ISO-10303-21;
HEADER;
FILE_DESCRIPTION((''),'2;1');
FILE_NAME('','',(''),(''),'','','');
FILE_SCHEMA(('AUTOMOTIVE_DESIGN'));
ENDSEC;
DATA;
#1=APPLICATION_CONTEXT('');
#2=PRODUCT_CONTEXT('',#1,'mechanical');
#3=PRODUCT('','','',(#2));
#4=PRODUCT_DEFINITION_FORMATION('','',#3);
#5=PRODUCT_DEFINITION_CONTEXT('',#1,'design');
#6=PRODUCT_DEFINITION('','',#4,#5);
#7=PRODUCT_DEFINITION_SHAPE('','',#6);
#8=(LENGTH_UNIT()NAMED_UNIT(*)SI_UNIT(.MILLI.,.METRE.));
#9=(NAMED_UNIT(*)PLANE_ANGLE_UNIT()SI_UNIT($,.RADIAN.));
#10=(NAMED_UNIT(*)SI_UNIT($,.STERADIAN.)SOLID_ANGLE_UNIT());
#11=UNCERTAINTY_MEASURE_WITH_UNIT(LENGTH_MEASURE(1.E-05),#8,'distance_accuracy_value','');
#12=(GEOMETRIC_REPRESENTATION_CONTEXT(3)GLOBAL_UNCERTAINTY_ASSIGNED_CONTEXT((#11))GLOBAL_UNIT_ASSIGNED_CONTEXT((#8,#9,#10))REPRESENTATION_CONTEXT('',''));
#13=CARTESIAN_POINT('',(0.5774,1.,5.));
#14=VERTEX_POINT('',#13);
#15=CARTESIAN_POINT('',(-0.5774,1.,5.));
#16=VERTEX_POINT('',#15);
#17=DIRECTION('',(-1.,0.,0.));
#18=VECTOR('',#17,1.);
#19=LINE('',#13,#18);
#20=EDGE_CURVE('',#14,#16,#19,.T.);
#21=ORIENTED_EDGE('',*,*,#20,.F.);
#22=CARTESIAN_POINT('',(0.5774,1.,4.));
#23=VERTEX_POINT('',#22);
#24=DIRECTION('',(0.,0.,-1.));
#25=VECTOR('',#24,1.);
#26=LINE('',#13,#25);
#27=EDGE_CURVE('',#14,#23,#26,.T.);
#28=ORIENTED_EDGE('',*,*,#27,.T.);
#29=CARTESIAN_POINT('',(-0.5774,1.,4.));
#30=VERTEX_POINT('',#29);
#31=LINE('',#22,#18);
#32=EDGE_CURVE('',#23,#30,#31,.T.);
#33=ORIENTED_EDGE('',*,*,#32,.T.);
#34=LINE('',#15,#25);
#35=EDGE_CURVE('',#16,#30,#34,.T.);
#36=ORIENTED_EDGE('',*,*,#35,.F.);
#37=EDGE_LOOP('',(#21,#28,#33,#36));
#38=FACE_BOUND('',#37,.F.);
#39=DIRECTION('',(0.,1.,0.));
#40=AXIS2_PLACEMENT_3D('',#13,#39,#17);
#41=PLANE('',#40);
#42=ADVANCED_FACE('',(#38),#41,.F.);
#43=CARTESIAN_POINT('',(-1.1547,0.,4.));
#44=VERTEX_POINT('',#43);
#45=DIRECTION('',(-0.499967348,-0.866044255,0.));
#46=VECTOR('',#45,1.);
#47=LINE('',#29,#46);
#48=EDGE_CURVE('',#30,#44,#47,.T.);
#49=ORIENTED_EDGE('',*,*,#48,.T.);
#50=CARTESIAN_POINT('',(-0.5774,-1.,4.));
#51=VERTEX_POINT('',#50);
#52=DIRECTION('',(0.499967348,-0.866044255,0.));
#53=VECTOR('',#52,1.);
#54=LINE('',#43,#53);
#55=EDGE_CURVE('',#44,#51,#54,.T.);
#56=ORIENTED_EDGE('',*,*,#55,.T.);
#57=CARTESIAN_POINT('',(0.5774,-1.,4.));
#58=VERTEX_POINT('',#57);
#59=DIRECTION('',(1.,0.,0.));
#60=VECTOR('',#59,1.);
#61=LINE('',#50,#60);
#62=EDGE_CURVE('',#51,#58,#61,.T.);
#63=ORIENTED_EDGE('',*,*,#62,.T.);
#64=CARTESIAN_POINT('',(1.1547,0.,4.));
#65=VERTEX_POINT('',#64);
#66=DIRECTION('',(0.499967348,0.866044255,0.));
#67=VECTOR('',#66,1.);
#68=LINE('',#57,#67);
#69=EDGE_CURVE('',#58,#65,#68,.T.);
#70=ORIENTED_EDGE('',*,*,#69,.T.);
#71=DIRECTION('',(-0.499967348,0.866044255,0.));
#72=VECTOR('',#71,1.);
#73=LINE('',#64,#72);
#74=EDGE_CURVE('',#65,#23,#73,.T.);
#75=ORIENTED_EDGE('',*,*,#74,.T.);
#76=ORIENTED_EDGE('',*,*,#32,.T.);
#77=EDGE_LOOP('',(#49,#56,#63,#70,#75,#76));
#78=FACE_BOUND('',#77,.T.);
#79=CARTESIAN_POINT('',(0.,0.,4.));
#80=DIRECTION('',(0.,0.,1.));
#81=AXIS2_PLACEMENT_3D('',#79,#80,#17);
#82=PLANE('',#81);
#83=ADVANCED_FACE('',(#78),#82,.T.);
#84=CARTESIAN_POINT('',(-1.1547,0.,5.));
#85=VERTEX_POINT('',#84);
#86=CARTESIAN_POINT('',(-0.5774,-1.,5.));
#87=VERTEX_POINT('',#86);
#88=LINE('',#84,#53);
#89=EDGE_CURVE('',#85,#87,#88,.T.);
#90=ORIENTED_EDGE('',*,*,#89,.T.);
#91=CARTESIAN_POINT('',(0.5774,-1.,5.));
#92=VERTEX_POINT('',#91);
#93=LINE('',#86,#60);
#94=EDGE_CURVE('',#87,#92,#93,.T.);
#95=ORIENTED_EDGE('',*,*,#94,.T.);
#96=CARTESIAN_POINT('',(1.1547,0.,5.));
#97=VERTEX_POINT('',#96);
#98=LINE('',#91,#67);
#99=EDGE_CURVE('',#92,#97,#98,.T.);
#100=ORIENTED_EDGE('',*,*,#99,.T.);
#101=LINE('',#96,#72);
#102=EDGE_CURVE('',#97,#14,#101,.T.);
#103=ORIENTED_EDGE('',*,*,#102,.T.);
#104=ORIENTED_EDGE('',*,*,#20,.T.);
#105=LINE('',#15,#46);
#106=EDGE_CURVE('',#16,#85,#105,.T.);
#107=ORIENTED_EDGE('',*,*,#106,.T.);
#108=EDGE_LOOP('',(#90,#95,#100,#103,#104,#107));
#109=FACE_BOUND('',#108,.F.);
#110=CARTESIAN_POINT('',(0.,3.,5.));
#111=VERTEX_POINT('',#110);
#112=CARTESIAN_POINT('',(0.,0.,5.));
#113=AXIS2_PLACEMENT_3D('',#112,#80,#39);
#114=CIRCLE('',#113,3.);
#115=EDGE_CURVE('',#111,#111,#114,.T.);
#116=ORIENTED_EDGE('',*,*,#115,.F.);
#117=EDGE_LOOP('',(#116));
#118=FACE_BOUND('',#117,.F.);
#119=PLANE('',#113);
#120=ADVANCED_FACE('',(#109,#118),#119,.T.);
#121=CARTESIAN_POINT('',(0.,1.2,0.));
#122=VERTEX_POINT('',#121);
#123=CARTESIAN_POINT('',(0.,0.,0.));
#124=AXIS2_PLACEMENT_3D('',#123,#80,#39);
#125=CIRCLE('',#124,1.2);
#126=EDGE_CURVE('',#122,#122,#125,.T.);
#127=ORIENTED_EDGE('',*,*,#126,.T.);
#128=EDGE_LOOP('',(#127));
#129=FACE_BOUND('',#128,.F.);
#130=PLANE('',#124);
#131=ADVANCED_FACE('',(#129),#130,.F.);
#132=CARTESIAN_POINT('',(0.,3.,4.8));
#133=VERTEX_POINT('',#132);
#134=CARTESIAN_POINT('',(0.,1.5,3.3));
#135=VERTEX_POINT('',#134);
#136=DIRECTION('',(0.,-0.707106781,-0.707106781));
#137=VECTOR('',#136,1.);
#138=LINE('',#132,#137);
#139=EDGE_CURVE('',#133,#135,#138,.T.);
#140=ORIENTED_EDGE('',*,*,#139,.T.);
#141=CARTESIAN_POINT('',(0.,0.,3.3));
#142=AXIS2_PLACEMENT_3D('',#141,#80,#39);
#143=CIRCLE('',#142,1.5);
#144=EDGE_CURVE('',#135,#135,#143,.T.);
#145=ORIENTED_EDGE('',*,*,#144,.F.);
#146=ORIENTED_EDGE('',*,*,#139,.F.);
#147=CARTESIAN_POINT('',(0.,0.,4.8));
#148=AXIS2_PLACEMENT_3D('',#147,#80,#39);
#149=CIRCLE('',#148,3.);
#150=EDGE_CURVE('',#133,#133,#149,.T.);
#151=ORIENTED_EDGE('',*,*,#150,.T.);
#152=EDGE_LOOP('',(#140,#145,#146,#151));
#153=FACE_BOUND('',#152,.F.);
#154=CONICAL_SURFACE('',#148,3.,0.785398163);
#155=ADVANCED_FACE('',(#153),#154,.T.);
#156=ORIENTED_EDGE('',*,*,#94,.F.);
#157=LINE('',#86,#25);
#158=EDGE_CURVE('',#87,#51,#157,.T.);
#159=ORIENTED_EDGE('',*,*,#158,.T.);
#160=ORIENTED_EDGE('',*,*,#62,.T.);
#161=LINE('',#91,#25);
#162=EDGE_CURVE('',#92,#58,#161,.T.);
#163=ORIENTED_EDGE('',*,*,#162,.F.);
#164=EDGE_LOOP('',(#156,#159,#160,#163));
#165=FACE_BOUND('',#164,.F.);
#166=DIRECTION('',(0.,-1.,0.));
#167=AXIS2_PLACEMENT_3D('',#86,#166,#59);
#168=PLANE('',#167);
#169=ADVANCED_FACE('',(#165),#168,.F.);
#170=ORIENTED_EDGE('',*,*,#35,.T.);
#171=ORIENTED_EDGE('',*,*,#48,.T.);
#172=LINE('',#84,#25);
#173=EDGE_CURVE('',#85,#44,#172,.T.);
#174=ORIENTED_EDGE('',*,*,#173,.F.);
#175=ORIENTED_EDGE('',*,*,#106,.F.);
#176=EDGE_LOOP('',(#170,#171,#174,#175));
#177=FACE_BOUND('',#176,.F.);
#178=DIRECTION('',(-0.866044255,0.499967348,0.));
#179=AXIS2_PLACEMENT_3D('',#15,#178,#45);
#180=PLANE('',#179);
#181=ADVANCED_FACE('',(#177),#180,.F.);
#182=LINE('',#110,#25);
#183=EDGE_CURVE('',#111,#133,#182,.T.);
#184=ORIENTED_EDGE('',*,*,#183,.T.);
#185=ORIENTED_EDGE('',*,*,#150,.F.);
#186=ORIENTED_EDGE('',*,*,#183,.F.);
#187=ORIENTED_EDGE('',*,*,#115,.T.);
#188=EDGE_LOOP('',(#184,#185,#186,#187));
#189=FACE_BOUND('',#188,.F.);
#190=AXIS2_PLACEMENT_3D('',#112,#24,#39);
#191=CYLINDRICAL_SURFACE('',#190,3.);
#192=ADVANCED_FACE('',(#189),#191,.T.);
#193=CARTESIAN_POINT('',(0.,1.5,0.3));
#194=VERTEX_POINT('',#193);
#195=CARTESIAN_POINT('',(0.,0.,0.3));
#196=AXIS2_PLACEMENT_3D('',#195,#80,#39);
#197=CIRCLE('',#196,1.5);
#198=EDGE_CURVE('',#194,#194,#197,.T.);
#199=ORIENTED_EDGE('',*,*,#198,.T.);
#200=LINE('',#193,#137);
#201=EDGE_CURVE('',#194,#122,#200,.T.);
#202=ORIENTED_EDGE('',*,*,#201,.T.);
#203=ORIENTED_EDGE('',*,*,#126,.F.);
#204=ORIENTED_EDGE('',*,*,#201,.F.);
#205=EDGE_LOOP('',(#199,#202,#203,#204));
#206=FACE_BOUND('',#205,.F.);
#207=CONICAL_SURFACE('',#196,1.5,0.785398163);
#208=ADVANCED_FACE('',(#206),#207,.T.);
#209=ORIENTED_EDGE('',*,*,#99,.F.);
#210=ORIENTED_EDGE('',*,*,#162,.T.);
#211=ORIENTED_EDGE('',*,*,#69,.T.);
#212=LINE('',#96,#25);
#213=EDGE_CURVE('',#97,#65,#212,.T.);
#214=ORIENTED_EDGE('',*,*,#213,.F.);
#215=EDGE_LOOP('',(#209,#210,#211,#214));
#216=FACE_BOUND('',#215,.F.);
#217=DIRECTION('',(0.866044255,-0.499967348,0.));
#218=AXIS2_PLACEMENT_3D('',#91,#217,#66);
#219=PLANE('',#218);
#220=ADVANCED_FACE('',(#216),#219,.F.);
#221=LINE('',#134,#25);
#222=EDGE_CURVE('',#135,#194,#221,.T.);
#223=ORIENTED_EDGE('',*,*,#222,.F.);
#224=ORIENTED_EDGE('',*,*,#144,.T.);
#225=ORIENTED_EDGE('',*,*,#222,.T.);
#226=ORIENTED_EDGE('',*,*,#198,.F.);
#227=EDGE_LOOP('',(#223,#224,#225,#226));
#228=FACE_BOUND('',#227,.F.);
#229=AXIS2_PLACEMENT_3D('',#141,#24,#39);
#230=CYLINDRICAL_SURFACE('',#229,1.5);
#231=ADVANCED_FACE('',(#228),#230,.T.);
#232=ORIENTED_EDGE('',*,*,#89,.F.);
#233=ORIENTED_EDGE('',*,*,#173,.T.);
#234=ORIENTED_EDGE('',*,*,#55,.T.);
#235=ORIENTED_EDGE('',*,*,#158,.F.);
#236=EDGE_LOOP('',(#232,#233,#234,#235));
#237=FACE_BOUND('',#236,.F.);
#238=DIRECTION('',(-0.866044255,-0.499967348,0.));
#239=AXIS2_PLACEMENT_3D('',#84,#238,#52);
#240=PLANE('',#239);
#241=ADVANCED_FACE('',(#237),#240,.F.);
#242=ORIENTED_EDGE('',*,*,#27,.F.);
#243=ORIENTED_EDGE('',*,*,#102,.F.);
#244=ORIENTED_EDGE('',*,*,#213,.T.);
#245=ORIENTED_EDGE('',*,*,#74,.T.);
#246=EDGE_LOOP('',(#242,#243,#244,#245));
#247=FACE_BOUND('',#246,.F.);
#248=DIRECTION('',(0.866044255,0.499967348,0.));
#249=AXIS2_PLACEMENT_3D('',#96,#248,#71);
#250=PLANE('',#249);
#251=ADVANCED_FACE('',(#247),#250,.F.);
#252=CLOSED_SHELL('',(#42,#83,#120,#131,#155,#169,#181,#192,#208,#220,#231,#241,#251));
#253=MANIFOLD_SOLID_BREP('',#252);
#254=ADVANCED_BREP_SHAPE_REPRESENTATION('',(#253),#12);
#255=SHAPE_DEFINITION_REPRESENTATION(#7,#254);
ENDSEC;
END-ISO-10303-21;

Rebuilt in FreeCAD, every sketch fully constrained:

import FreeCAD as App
import Part
import Sketcher
Q = App.Units.Quantity


def add_polygon(sketch, points):
    """Adds a closed chain of lines whose ends are joined by coincident constraints."""
    first, n = sketch.GeometryCount, len(points)
    for a, b in zip(points, points[1:] + points[:1]):
        sketch.addGeometry(Part.LineSegment(App.Vector(*a, 0), App.Vector(*b, 0)), False)
    for i in range(n):
        sketch.addConstraint(Sketcher.Constraint("Coincident", first + i, 2, first + (i + 1) % n, 1))

doc = App.newDocument("Part")
params = doc.addObject("Spreadsheet::Sheet", "Params")
for row, (alias, value) in enumerate([
    ("sketch1_width", "3 mm"),
    ("sketch1_height", "5 mm"),
    ("revolution_angle", "360 deg"),
    ("pocket1_length", "1 mm"),
], start=1):
    params.set(f"A{row}", alias)
    params.set(f"B{row}", "=" + value)
    params.setAlias(f"B{row}", alias)

body = doc.addObject("PartDesign::Body", "Body")

sketch1 = body.newObject("Sketcher::SketchObject", "Sketch")
sketch1.AttachmentSupport = (doc.getObject("YZ_Plane"), [""])
sketch1.MapMode = "FlatFace"
add_polygon(sketch1, [(3, 5), (0, 5), (0, 0), (1.2, 0), (1.5, 0.3), (1.5, 3.3), (3, 4.8)])
sketch1.addConstraint(Sketcher.Constraint("Horizontal", 0))
sketch1.addConstraint(Sketcher.Constraint("Vertical", 1))
sketch1.addConstraint(Sketcher.Constraint("Horizontal", 2))
sketch1.addConstraint(Sketcher.Constraint("Vertical", 4))
sketch1.addConstraint(Sketcher.Constraint("Vertical", 6))
sketch1.addConstraint(Sketcher.Constraint("Coincident", 1, 2, -1, 1))
sketch1.addConstraint(Sketcher.Constraint("Parallel", 3, 5))
sketch1.addConstraint(Sketcher.Constraint("Equal", 0, 4))
sketch1.addConstraint(Sketcher.Constraint("DistanceX", 0, 2, 0, 1, Q("3 mm")))
sketch1.addConstraint(Sketcher.Constraint("DistanceY", 1, 2, 1, 1, Q("5 mm")))
sketch1.addConstraint(Sketcher.Constraint("DistanceX", -1, 1, 3, 2, Q("1.5 mm")))
sketch1.addConstraint(Sketcher.Constraint("DistanceY", -1, 1, 3, 2, Q("0.3 mm")))
sketch1.addConstraint(Sketcher.Constraint("DistanceX", 2, 2, 3, 2, Q("0.3 mm")))
sketch1.setExpression("Constraints[15]", "Params.sketch1_width")
sketch1.setExpression("Constraints[16]", "Params.sketch1_height")
revolution = body.newObject("PartDesign::Revolution", "Revolution")
revolution.Profile = sketch1
revolution.ReferenceAxis = (sketch1, ["V_Axis"])
revolution.setExpression("Angle", "Params.revolution_angle")

sketch2 = body.newObject("Sketcher::SketchObject", "Sketch001")
sketch2.AttachmentSupport = (doc.getObject("XY_Plane"), [""])
sketch2.MapMode = "FlatFace"
sketch2.AttachmentOffset = App.Placement(App.Vector(0, 0, 5), App.Rotation())
add_polygon(sketch2, [(0.6, 1), (-0.6, 1), (-1.2, 0), (-0.6, -1), (0.6, -1), (1.2, 0)])
sketch2.addConstraint(Sketcher.Constraint("Horizontal", 0))
sketch2.addConstraint(Sketcher.Constraint("Horizontal", 3))
sketch2.addConstraint(Sketcher.Constraint("Symmetric", 0, 2, 3, 2, -1, 1))
sketch2.addConstraint(Sketcher.Constraint("Symmetric", 1, 2, 4, 2, -1, 1))
sketch2.addConstraint(Sketcher.Constraint("PointOnObject", 1, 2, -1))
sketch2.addConstraint(Sketcher.Constraint("Parallel", 2, 5))
sketch2.addConstraint(Sketcher.Constraint("Vertical", 0, 2, 2, 2))
sketch2.addConstraint(Sketcher.Constraint("DistanceY", -1, 1, 0, 2, Q("1 mm")))
sketch2.addConstraint(Sketcher.Constraint("DistanceX", 0, 2, 0, 1, Q("1.1548 mm")))
sketch2.addConstraint(Sketcher.Constraint("DistanceX", 1, 2, 3, 2, Q("1.732 mm")))
pocket1 = body.newObject("PartDesign::Pocket", "Pocket")
pocket1.Profile = sketch2
pocket1.setExpression("Length", "Params.pocket1_length")

doc.recompute()
